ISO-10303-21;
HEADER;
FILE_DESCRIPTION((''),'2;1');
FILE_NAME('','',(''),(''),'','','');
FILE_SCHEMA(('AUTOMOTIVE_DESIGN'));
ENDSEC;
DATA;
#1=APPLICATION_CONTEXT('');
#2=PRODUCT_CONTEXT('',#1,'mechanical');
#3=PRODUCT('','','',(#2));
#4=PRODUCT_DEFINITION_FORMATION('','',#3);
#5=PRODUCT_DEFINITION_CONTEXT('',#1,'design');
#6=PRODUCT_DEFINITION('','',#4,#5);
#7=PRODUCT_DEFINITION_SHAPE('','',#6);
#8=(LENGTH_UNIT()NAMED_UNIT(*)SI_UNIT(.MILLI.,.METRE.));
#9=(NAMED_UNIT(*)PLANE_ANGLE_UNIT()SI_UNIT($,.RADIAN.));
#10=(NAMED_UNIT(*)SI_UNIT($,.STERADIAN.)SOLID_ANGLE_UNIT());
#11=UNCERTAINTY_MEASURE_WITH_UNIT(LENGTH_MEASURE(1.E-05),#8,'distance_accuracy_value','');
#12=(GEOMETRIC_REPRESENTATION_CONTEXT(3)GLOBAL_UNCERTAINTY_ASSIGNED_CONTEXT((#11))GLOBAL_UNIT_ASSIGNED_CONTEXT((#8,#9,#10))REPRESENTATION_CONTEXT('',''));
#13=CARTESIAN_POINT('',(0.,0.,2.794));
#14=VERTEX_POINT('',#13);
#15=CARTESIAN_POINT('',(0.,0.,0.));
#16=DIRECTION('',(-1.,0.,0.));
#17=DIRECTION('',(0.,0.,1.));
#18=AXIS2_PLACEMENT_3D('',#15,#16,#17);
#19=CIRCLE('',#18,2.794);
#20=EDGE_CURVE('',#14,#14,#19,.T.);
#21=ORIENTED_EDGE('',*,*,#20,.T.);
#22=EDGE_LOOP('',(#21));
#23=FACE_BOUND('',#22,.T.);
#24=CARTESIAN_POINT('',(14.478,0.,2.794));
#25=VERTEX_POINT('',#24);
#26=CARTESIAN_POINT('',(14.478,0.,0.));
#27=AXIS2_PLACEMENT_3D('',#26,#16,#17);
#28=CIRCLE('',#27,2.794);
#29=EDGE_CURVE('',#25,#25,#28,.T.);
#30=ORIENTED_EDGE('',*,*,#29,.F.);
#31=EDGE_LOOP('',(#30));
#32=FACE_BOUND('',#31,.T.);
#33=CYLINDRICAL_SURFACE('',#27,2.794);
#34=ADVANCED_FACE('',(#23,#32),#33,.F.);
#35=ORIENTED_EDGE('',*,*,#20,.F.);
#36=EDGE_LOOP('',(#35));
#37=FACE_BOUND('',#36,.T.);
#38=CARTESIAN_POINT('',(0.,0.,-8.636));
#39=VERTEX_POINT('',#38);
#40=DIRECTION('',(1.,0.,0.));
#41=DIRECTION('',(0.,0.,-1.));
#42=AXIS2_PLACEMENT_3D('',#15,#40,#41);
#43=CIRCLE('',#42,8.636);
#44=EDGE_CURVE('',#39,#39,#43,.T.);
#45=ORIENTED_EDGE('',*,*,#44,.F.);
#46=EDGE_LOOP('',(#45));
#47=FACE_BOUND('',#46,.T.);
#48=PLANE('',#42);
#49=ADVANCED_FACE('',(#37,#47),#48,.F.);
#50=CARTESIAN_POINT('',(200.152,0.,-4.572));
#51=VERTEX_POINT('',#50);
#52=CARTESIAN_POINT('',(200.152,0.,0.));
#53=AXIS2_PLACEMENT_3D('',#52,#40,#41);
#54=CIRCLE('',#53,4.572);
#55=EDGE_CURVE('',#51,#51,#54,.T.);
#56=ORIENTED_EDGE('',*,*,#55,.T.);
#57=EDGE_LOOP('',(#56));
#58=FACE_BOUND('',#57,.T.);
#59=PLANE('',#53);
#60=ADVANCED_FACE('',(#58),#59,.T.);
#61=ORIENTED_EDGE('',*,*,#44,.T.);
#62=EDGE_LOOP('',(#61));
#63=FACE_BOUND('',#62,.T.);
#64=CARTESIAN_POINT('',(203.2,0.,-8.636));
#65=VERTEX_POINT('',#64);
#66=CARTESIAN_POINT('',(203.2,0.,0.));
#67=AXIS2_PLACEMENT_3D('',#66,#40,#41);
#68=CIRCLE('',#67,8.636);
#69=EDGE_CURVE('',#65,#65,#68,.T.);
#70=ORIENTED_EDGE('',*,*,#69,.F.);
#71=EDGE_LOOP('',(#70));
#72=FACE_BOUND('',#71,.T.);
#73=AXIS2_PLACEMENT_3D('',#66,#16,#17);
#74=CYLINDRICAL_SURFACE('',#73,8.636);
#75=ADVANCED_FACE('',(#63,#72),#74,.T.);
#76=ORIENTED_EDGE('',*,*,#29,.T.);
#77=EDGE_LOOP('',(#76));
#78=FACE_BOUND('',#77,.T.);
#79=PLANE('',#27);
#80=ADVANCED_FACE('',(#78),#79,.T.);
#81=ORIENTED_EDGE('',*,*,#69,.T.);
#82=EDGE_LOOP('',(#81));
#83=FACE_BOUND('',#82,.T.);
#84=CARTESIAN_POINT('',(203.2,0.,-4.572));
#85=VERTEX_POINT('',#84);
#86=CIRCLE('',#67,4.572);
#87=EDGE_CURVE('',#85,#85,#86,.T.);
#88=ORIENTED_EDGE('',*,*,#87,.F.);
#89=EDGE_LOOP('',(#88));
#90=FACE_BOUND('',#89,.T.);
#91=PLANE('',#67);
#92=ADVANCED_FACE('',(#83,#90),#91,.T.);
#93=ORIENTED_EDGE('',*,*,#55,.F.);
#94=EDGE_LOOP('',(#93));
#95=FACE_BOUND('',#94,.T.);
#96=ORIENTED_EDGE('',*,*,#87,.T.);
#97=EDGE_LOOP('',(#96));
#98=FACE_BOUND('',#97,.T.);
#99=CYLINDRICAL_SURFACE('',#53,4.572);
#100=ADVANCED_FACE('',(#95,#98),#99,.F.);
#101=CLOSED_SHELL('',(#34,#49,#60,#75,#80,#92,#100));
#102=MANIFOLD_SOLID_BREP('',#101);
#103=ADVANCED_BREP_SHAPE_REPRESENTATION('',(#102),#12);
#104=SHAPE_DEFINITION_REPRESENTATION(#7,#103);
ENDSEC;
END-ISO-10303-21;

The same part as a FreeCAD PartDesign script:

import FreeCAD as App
import Part
import Sketcher
from FreeCAD import Vector
Q = App.Units.Quantity

doc = App.newDocument("Part")
body = doc.addObject("PartDesign::Body", "Body")

# Sketch on YZ plane
sketch1 = body.newObject("Sketcher::SketchObject", "Sketch")
sketch1.AttachmentSupport = (doc.getObject("YZ_Plane"), [""])
sketch1.MapMode = "FlatFace"
sketch1.addGeometry(Part.Circle(Vector(0, 0, 0), Vector(0, 0, 1), 9), False)
sketch1.addConstraint([
    Sketcher.Constraint("Coincident", 0, 3, -1, 1),
    Sketcher.Constraint("Diameter", 0, Q("0.68 in")),
])
pad1 = body.newObject("PartDesign::Pad", "Pad")
pad1.Profile = sketch1
pad1.Length = Q("8 in")

# Sketch on YZ plane
sketch2 = body.newObject("Sketcher::SketchObject", "Sketch001")
sketch2.AttachmentSupport = (doc.getObject("YZ_Plane"), [""])
sketch2.MapMode = "FlatFace"
sketch2.AttachmentOffset = App.Placement(Vector(0, 0, 8 * 25.4), App.Rotation())
sketch2.addGeometry(Part.Circle(Vector(0, 0, 0), Vector(0, 0, 1), 4.6), False)
sketch2.addConstraint([
    Sketcher.Constraint("Coincident", 0, 3, -1, 1),
    Sketcher.Constraint("Diameter", 0, Q("0.36 in")),
])
pocket1 = body.newObject("PartDesign::Pocket", "Pocket")
pocket1.Profile = sketch2
pocket1.Length = Q("0.12 in")

# Sketch on YZ plane
sketch3 = body.newObject("Sketcher::SketchObject", "Sketch002")
sketch3.AttachmentSupport = (doc.getObject("YZ_Plane"), [""])
sketch3.MapMode = "FlatFace"
sketch3.addGeometry(Part.Circle(Vector(0, 0, 0), Vector(0, 0, 1), 2.8), False)
sketch3.addConstraint([
    Sketcher.Constraint("Coincident", 0, 3, -1, 1),
    Sketcher.Constraint("Diameter", 0, Q("0.22 in")),
])
pocket2 = body.newObject("PartDesign::Pocket", "Pocket001")
pocket2.Profile = sketch3
pocket2.Length = Q("0.57 in")
pocket2.Reversed = True

doc.recompute()
